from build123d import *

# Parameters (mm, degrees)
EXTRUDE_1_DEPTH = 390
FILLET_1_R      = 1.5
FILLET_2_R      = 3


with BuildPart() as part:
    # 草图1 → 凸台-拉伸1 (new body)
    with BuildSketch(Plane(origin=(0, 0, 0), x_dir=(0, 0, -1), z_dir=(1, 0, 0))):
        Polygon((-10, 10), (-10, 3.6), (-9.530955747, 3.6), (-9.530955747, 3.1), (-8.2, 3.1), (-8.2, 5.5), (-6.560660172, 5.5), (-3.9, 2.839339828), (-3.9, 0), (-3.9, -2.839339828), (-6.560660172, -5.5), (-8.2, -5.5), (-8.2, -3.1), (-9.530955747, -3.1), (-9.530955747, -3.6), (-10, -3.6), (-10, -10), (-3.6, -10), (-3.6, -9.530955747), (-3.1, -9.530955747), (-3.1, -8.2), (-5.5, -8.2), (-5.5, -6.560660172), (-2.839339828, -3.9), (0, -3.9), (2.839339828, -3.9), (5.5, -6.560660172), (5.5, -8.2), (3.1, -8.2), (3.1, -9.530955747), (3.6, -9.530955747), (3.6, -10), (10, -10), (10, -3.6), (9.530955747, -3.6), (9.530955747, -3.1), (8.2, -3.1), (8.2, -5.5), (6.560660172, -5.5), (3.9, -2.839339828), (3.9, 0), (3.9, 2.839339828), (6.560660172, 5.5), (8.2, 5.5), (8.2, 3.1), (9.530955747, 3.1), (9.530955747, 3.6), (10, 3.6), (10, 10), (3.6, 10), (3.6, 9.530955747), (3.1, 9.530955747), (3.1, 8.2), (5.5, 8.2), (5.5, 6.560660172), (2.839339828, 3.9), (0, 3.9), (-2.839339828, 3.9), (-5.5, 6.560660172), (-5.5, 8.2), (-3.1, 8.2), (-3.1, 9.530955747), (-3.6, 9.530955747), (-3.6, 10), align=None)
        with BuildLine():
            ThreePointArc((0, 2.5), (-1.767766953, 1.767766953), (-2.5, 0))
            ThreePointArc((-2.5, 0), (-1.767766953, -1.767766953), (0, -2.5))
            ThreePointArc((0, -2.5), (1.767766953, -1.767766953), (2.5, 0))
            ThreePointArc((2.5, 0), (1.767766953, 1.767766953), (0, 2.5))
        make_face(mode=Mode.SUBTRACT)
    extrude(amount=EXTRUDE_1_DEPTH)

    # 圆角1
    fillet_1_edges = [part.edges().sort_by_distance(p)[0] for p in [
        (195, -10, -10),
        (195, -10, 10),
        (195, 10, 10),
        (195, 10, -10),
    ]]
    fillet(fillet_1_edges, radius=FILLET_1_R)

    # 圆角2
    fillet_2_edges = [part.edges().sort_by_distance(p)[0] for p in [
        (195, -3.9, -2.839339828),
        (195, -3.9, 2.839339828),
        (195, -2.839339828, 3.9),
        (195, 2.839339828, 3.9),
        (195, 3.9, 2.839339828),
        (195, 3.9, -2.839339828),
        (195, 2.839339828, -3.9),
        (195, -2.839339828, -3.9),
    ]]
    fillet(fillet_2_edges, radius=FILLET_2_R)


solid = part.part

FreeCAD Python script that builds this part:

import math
import FreeCAD as App
import Part
import Sketcher
from FreeCAD import Vector
Q = App.Units.Quantity


def edges_at(feature, points):
    """Names of the edges that pass closest to the given points."""
    edges = feature.Shape.Edges
    near = lambda p: min(range(len(edges)), key=lambda i: edges[i].distToShape(Part.Vertex(*p))[0])
    return sorted({f"Edge{near(p) + 1}" for p in points})


def add_polygon(sketch, points):
    """Adds a closed chain of lines whose ends are joined by coincident constraints."""
    first, n = sketch.GeometryCount, len(points)
    for a, b in zip(points, points[1:] + points[:1]):
        sketch.addGeometry(Part.LineSegment(App.Vector(*a, 0), App.Vector(*b, 0)), False)
    for i in range(n):
        sketch.addConstraint(Sketcher.Constraint("Coincident", first + i, 2, first + (i + 1) % n, 1))

doc = App.newDocument("Part")
body = doc.addObject("PartDesign::Body", "Body")

# Sketch on YZ plane
sketch1 = body.newObject("Sketcher::SketchObject", "Sketch")
sketch1.AttachmentSupport = (doc.getObject("YZ_Plane"), [""])
sketch1.MapMode = "FlatFace"
add_polygon(sketch1, [(10, 10), (3.6, 10), (3.6, 9.53), (3.1, 9.53), (3.1, 8.2), (5.5, 8.2), (5.5, 6.56), (2.84, 3.9), (-2.84, 3.9), (-5.5, 6.56), (-5.5, 8.2), (-3.1, 8.2), (-3.1, 9.53), (-3.6, 9.53), (-3.6, 10), (-10, 10), (-10, 3.6), (-9.53, 3.6), (-9.53, 3.1), (-8.2, 3.1), (-8.2, 5.5), (-6.56, 5.5), (-3.9, 2.84), (-3.9, -2.84), (-6.56, -5.5), (-8.2, -5.5), (-8.2, -3.1), (-9.53, -3.1), (-9.53, -3.6), (-10, -3.6), (-10, -10), (-3.6, -10), (-3.6, -9.53), (-3.1, -9.53), (-3.1, -8.2), (-5.5, -8.2), (-5.5, -6.56), (-2.84, -3.9), (2.84, -3.9), (5.5, -6.56), (5.5, -8.2), (3.1, -8.2), (3.1, -9.53), (3.6, -9.53), (3.6, -10), (10, -10), (10, -3.6), (9.53, -3.6), (9.53, -3.1), (8.2, -3.1), (8.2, -5.5), (6.56, -5.5), (3.9, -2.84), (3.9, 2.84), (6.56, 5.5), (8.2, 5.5), (8.2, 3.1), (9.53, 3.1), (9.53, 3.6), (10, 3.6)])  # lines 0-59
sketch1.addGeometry(Part.ArcOfCircle(Part.Circle(Vector(0, 0, 0), Vector(0, 0, 1), 2.5), math.radians(0), math.radians(90)), False)  # 60
sketch1.addGeometry(Part.ArcOfCircle(Part.Circle(Vector(0, 0, 0), Vector(0, 0, 1), 2.5), math.radians(-90), math.radians(0)), False)  # 61
sketch1.addGeometry(Part.ArcOfCircle(Part.Circle(Vector(0, 0, 0), Vector(0, 0, 1), 2.5), math.radians(180), math.radians(270)), False)  # 62
sketch1.addGeometry(Part.ArcOfCircle(Part.Circle(Vector(0, 0, 0), Vector(0, 0, 1), 2.5), math.radians(90), math.radians(180)), False)  # 63
sketch1.addConstraint([
    Sketcher.Constraint("Tangent", 60, 1, 61, 2),
    Sketcher.Constraint("Tangent", 61, 1, 62, 2),
    Sketcher.Constraint("Tangent", 62, 1, 63, 2),
    Sketcher.Constraint("Tangent", 63, 1, 60, 2),
    Sketcher.Constraint("Horizontal", 0),
    Sketcher.Constraint("Vertical", 1),
    Sketcher.Constraint("Horizontal", 2),
    Sketcher.Constraint("Vertical", 3),
    Sketcher.Constraint("Horizontal", 4),
    Sketcher.Constraint("Vertical", 5),
    Sketcher.Constraint("Horizontal", 7),
    Sketcher.Constraint("Vertical", 9),
    Sketcher.Constraint("Horizontal", 10),
    Sketcher.Constraint("Vertical", 11),
    Sketcher.Constraint("Horizontal", 12),
    Sketcher.Constraint("Vertical", 13),
    Sketcher.Constraint("Horizontal", 14),
    Sketcher.Constraint("Vertical", 15),
    Sketcher.Constraint("Horizontal", 16),
    Sketcher.Constraint("Vertical", 17),
    Sketcher.Constraint("Horizontal", 18),
    Sketcher.Constraint("Vertical", 19),
    Sketcher.Constraint("Horizontal", 20),
    Sketcher.Constraint("Vertical", 22),
    Sketcher.Constraint("Horizontal", 24),
    Sketcher.Constraint("Vertical", 25),
    Sketcher.Constraint("Horizontal", 26),
    Sketcher.Constraint("Vertical", 27),
    Sketcher.Constraint("Horizontal", 28),
    Sketcher.Constraint("Vertical", 29),
    Sketcher.Constraint("Horizontal", 30),
    Sketcher.Constraint("Vertical", 31),
    Sketcher.Constraint("Horizontal", 32),
    Sketcher.Constraint("Vertical", 33),
    Sketcher.Constraint("Horizontal", 34),
    Sketcher.Constraint("Vertical", 35),
    Sketcher.Constraint("Horizontal", 37),
    Sketcher.Constraint("Vertical", 39),
    Sketcher.Constraint("Horizontal", 40),
    Sketcher.Constraint("Vertical", 41),
    Sketcher.Constraint("Horizontal", 42),
    Sketcher.Constraint("Vertical", 43),
    Sketcher.Constraint("Horizontal", 44),
    Sketcher.Constraint("Vertical", 45),
    Sketcher.Constraint("Horizontal", 46),
    Sketcher.Constraint("Vertical", 47),
    Sketcher.Constraint("Horizontal", 48),
    Sketcher.Constraint("Vertical", 49),
    Sketcher.Constraint("Horizontal", 50),
    Sketcher.Constraint("Vertical", 52),
    Sketcher.Constraint("Horizontal", 54),
    Sketcher.Constraint("Vertical", 55),
    Sketcher.Constraint("Horizontal", 56),
    Sketcher.Constraint("Vertical", 57),
    Sketcher.Constraint("Horizontal", 58),
    Sketcher.Constraint("Vertical", 59),
    Sketcher.Constraint("Coincident", 60, 3, -1, 1),
    Sketcher.Constraint("Equal", 60, 61),
    Sketcher.Constraint("Symmetric", 0, 2, 30, 2, -1, 1),
    Sketcher.Constraint("Symmetric", 2, 2, 32, 2, -1, 1),
    Sketcher.Constraint("Symmetric", 4, 2, 34, 2, -1, 1),
    Sketcher.Constraint("Symmetric", 6, 2, 36, 2, -1, 1),
    Sketcher.Constraint("Symmetric", 8, 2, 38, 2, -1, 1),
    Sketcher.Constraint("Symmetric", 10, 2, 40, 2, -1, 1),
    Sketcher.Constraint("Symmetric", 12, 2, 42, 2, -1, 1),
    Sketcher.Constraint("Symmetric", 14, 2, 44, 2, -1, 1),
    Sketcher.Constraint("Symmetric", 16, 2, 46, 2, -1, 1),
    Sketcher.Constraint("Symmetric", 18, 2, 48, 2, -1, 1),
    Sketcher.Constraint("Symmetric", 20, 2, 50, 2, -1, 1),
    Sketcher.Constraint("Symmetric", 21, 2, 51, 2, -1, 1),
    Sketcher.Constraint("Symmetric", 23, 2, 53, 2, -1, 1),
    Sketcher.Constraint("Symmetric", 25, 2, 55, 2, -1, 1),
    Sketcher.Constraint("Symmetric", 27, 2, 57, 2, -1, 1),
    Sketcher.Constraint("Symmetric", 5, 2, 8, 2, -2),
    Sketcher.Constraint("Symmetric", 3, 2, 10, 2, -2),
    Sketcher.Constraint("Symmetric", 1, 2, 12, 2, -2),
    Sketcher.Constraint("Symmetric", 29, 2, 44, 2, -2),
    Sketcher.Constraint("Symmetric", 27, 2, 46, 2, -2),
    Sketcher.Constraint("Symmetric", 25, 2, 48, 2, -2),
    Sketcher.Constraint("Symmetric", 23, 2, 50, 2, -2),
    Sketcher.Constraint("PointOnObject", 60, 1, -1),
    Sketcher.Constraint("PointOnObject", 61, 1, -2),
    Sketcher.Constraint("PointOnObject", 62, 1, -1),
    Sketcher.Constraint("PointOnObject", 63, 1, -2),
    Sketcher.Constraint("Perpendicular", 6, 8),
    Sketcher.Constraint("Parallel", 8, 21),
    Sketcher.Constraint("Perpendicular", 21, 23),
    Sketcher.Constraint("Parallel", 23, 36),
    Sketcher.Constraint("Perpendicular", 36, 38),
    Sketcher.Constraint("Perpendicular", 51, 53),
    Sketcher.Constraint("Horizontal", 22, 2, 51, 2),
    Sketcher.Constraint("Vertical", 45, 2, 58, 2),
    Sketcher.Constraint("Equal", 58, 1),
    Sketcher.Constraint("Equal", 56, 3),
    Sketcher.Constraint("Equal", 54, 5),
    Sketcher.Constraint("Equal", 44, 15),
    Sketcher.Constraint("Equal", 42, 17),
    Sketcher.Constraint("Equal", 40, 19),
    Sketcher.Constraint("Equal", 37, 22),
    Sketcher.Constraint("Equal", 8, 21),
    Sketcher.Constraint("Radius", 60, Q("2.5 mm")),
    Sketcher.Constraint("DistanceX", 0, 2, 0, 1, Q("6.4 mm")),
    Sketcher.Constraint("DistanceX", 2, 2, 2, 1, Q("0.5 mm")),
    Sketcher.Constraint("DistanceX", 4, 1, 4, 2, Q("2.4 mm")),
    Sketcher.Constraint("DistanceY", -1, 1, 0, 2, Q("10 mm")),
    Sketcher.Constraint("DistanceY", -1, 1, 3, 2, Q("8.2 mm")),
    Sketcher.Constraint("DistanceY", -1, 1, 6, 2, Q("3.9 mm")),
    Sketcher.Constraint("DistanceX", 7, 2, 7, 1, Q("5.67868 mm")),
    Sketcher.Constraint("DistanceX", 16, 1, 16, 2, Q("0.469044 mm")),
])
pad1 = body.newObject("PartDesign::Pad", "Pad")
pad1.Profile = sketch1
pad1.Length = 390
doc.recompute()

fillet = body.newObject("PartDesign::Fillet", "Fillet")
fillet.Base = (pad1, edges_at(pad1, [
    (195, -10, -10),
    (195, -10, 10),
    (195, 10, 10),
    (195, 10, -10),
]))
fillet.Radius = 1.5
doc.recompute()

fillet2 = body.newObject("PartDesign::Fillet", "Fillet001")
fillet2.Base = (fillet, edges_at(fillet, [
    (195, -3.9, -2.839),
    (195, -3.9, 2.839),
    (195, -2.839, 3.9),
    (195, 2.839, 3.9),
    (195, 3.9, 2.839),
    (195, 3.9, -2.839),
    (195, 2.839, -3.9),
    (195, -2.839, -3.9),
]))
fillet2.Radius = 3

doc.recompute()
